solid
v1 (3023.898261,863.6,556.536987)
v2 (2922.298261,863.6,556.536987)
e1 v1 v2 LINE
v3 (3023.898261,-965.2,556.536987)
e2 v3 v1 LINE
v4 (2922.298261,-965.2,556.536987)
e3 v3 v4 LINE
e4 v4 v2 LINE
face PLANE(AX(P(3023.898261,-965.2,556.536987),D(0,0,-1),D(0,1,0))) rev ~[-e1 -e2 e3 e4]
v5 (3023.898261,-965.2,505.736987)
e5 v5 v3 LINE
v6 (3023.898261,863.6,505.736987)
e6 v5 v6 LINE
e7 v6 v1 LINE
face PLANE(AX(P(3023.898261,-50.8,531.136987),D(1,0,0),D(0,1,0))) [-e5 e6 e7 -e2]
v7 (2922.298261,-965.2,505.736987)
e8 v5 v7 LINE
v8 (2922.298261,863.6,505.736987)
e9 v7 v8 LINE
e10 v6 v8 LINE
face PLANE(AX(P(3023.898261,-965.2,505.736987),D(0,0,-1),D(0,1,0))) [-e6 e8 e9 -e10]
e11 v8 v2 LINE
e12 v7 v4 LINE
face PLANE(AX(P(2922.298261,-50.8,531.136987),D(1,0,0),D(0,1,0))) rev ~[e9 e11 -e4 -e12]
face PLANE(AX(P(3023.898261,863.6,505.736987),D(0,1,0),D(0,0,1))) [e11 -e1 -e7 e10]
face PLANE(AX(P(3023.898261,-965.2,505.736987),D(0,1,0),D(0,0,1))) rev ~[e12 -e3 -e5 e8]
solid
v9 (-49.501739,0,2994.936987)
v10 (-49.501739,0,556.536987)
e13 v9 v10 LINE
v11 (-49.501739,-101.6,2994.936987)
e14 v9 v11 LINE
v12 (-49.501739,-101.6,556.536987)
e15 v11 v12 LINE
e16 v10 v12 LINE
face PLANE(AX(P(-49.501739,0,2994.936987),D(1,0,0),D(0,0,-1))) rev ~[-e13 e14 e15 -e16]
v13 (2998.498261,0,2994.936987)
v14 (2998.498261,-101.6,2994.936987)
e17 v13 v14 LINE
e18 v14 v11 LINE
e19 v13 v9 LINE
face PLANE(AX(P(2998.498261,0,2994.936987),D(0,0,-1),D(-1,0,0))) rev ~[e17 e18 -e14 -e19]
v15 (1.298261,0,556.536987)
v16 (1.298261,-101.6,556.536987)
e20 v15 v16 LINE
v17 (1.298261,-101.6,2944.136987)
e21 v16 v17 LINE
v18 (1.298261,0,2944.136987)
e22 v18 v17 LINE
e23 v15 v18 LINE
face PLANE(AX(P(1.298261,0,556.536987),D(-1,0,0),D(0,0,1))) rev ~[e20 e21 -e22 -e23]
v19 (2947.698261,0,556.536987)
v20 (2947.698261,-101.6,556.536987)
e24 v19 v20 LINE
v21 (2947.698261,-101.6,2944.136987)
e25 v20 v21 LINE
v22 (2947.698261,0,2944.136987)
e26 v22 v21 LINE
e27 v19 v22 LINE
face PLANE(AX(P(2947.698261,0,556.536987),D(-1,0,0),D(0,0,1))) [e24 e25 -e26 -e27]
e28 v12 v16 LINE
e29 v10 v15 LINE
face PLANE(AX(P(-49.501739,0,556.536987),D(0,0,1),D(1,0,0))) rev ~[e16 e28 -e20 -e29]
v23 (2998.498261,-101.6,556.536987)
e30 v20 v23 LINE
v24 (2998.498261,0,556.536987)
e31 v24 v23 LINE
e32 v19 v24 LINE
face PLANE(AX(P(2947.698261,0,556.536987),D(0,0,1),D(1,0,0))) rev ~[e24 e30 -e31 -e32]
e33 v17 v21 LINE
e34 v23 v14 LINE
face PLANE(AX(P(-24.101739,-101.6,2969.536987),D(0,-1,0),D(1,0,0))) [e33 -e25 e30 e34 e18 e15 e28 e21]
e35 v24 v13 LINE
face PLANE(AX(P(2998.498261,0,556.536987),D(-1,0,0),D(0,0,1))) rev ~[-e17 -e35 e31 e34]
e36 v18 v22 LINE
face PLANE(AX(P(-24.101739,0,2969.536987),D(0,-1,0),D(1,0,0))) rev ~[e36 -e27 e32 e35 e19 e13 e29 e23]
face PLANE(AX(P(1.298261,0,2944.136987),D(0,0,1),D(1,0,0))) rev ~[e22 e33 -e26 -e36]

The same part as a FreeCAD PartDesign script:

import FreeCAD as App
import Part
import Sketcher

V = App.Vector
Q = App.Units.Quantity

doc = App.newDocument("Part")
body = doc.addObject("PartDesign::Body", "Body")

# Sketch on XZ plane
sketch1 = body.newObject("Sketcher::SketchObject", "Sketch")
sketch1.AttachmentSupport = (doc.getObject("XZ_Plane"), [""])
sketch1.MapMode = "FlatFace"
sketch1.addGeometry(Part.LineSegment(V(-50, 2995, 0), V(-50, 557, 0)), False)
sketch1.addGeometry(Part.LineSegment(V(-50, 557, 0), V(1, 557, 0)), False)
sketch1.addGeometry(Part.LineSegment(V(1, 557, 0), V(1, 2944, 0)), False)
sketch1.addGeometry(Part.LineSegment(V(1, 2944, 0), V(2948, 2944, 0)), False)
sketch1.addGeometry(Part.LineSegment(V(2948, 2944, 0), V(2948, 557, 0)), False)
sketch1.addGeometry(Part.LineSegment(V(2948, 557, 0), V(2998, 557, 0)), False)
sketch1.addGeometry(Part.LineSegment(V(2998, 557, 0), V(2998, 2995, 0)), False)
sketch1.addGeometry(Part.LineSegment(V(2998, 2995, 0), V(-50, 2995, 0)), False)
sketch1.addConstraint(Sketcher.Constraint("Coincident", 0, 2, 1, 1))
sketch1.addConstraint(Sketcher.Constraint("Coincident", 1, 2, 2, 1))
sketch1.addConstraint(Sketcher.Constraint("Coincident", 2, 2, 3, 1))
sketch1.addConstraint(Sketcher.Constraint("Coincident", 3, 2, 4, 1))
sketch1.addConstraint(Sketcher.Constraint("Coincident", 4, 2, 5, 1))
sketch1.addConstraint(Sketcher.Constraint("Coincident", 5, 2, 6, 1))
sketch1.addConstraint(Sketcher.Constraint("Coincident", 6, 2, 7, 1))
sketch1.addConstraint(Sketcher.Constraint("Coincident", 7, 2, 0, 1))
sketch1.addConstraint(Sketcher.Constraint("Vertical", 0))
sketch1.addConstraint(Sketcher.Constraint("Horizontal", 1))
sketch1.addConstraint(Sketcher.Constraint("Vertical", 2))
sketch1.addConstraint(Sketcher.Constraint("Horizontal", 3))
sketch1.addConstraint(Sketcher.Constraint("Vertical", 4))
sketch1.addConstraint(Sketcher.Constraint("Horizontal", 5))
sketch1.addConstraint(Sketcher.Constraint("Vertical", 6))
sketch1.addConstraint(Sketcher.Constraint("Horizontal", 7))
sketch1.addConstraint(Sketcher.Constraint("Horizontal", 1, 2, 4, 2))
sketch1.addConstraint(Sketcher.Constraint("Equal", 1, 5))
sketch1.addConstraint(Sketcher.Constraint("DistanceX", 1, 1, 1, 2, Q("2 in")))
sketch1.addConstraint(Sketcher.Constraint("DistanceX", 3, 1, 3, 2, Q("116 in")))
sketch1.addConstraint(Sketcher.Constraint("DistanceY", 0, 2, 0, 1, Q("96 in")))
sketch1.addConstraint(Sketcher.Constraint("DistanceY", 2, 1, 2, 2, Q("94 in")))
sketch1.addConstraint(Sketcher.Constraint("DistanceX", 0, 2, -1, 1, Q("49.501739 mm")))
sketch1.addConstraint(Sketcher.Constraint("DistanceY", -1, 1, 0, 2, Q("556.536987 mm")))
pad1 = body.newObject("PartDesign::Pad", "Pad")
pad1.Profile = sketch1
pad1.Length = Q("4 in")
body2 = doc.addObject("PartDesign::Body", "Body001")

# Sketch on YZ plane
sketch2 = body2.newObject("Sketcher::SketchObject", "Sketch001")
sketch2.AttachmentSupport = (doc.getObject("YZ_Plane001"), [""])
sketch2.MapMode = "FlatFace"
sketch2.AttachmentOffset = App.Placement(V(0, 0, 3023.898261), App.Rotation())
sketch2.addGeometry(Part.LineSegment(V(-965, 557, 0), V(-965, 506, 0)), False)
sketch2.addGeometry(Part.LineSegment(V(-965, 506, 0), V(864, 506, 0)), False)
sketch2.addGeometry(Part.LineSegment(V(864, 506, 0), V(864, 557, 0)), False)
sketch2.addGeometry(Part.LineSegment(V(864, 557, 0), V(-965, 557, 0)), False)
sketch2.addConstraint(Sketcher.Constraint("Coincident", 0, 2, 1, 1))
sketch2.addConstraint(Sketcher.Constraint("Coincident", 1, 2, 2, 1))
sketch2.addConstraint(Sketcher.Constraint("Coincident", 2, 2, 3, 1))
sketch2.addConstraint(Sketcher.Constraint("Coincident", 3, 2, 0, 1))
sketch2.addConstraint(Sketcher.Constraint("Vertical", 0))
sketch2.addConstraint(Sketcher.Constraint("Horizontal", 1))
sketch2.addConstraint(Sketcher.Constraint("Vertical", 2))
sketch2.addConstraint(Sketcher.Constraint("Horizontal", 3))
sketch2.addConstraint(Sketcher.Constraint("DistanceX", 1, 1, 1, 2, Q("72 in")))
sketch2.addConstraint(Sketcher.Constraint("DistanceY", 0, 2, 0, 1, Q("2 in")))
sketch2.addConstraint(Sketcher.Constraint("DistanceX", 0, 2, -1, 1, Q("38 in")))
sketch2.addConstraint(Sketcher.Constraint("DistanceY", -1, 1, 0, 2, Q("505.736987 mm")))
pad2 = body2.newObject("PartDesign::Pad", "Pad001")
pad2.Profile = sketch2
pad2.Length = Q("4 in")
pad2.Reversed = True

doc.recompute()
